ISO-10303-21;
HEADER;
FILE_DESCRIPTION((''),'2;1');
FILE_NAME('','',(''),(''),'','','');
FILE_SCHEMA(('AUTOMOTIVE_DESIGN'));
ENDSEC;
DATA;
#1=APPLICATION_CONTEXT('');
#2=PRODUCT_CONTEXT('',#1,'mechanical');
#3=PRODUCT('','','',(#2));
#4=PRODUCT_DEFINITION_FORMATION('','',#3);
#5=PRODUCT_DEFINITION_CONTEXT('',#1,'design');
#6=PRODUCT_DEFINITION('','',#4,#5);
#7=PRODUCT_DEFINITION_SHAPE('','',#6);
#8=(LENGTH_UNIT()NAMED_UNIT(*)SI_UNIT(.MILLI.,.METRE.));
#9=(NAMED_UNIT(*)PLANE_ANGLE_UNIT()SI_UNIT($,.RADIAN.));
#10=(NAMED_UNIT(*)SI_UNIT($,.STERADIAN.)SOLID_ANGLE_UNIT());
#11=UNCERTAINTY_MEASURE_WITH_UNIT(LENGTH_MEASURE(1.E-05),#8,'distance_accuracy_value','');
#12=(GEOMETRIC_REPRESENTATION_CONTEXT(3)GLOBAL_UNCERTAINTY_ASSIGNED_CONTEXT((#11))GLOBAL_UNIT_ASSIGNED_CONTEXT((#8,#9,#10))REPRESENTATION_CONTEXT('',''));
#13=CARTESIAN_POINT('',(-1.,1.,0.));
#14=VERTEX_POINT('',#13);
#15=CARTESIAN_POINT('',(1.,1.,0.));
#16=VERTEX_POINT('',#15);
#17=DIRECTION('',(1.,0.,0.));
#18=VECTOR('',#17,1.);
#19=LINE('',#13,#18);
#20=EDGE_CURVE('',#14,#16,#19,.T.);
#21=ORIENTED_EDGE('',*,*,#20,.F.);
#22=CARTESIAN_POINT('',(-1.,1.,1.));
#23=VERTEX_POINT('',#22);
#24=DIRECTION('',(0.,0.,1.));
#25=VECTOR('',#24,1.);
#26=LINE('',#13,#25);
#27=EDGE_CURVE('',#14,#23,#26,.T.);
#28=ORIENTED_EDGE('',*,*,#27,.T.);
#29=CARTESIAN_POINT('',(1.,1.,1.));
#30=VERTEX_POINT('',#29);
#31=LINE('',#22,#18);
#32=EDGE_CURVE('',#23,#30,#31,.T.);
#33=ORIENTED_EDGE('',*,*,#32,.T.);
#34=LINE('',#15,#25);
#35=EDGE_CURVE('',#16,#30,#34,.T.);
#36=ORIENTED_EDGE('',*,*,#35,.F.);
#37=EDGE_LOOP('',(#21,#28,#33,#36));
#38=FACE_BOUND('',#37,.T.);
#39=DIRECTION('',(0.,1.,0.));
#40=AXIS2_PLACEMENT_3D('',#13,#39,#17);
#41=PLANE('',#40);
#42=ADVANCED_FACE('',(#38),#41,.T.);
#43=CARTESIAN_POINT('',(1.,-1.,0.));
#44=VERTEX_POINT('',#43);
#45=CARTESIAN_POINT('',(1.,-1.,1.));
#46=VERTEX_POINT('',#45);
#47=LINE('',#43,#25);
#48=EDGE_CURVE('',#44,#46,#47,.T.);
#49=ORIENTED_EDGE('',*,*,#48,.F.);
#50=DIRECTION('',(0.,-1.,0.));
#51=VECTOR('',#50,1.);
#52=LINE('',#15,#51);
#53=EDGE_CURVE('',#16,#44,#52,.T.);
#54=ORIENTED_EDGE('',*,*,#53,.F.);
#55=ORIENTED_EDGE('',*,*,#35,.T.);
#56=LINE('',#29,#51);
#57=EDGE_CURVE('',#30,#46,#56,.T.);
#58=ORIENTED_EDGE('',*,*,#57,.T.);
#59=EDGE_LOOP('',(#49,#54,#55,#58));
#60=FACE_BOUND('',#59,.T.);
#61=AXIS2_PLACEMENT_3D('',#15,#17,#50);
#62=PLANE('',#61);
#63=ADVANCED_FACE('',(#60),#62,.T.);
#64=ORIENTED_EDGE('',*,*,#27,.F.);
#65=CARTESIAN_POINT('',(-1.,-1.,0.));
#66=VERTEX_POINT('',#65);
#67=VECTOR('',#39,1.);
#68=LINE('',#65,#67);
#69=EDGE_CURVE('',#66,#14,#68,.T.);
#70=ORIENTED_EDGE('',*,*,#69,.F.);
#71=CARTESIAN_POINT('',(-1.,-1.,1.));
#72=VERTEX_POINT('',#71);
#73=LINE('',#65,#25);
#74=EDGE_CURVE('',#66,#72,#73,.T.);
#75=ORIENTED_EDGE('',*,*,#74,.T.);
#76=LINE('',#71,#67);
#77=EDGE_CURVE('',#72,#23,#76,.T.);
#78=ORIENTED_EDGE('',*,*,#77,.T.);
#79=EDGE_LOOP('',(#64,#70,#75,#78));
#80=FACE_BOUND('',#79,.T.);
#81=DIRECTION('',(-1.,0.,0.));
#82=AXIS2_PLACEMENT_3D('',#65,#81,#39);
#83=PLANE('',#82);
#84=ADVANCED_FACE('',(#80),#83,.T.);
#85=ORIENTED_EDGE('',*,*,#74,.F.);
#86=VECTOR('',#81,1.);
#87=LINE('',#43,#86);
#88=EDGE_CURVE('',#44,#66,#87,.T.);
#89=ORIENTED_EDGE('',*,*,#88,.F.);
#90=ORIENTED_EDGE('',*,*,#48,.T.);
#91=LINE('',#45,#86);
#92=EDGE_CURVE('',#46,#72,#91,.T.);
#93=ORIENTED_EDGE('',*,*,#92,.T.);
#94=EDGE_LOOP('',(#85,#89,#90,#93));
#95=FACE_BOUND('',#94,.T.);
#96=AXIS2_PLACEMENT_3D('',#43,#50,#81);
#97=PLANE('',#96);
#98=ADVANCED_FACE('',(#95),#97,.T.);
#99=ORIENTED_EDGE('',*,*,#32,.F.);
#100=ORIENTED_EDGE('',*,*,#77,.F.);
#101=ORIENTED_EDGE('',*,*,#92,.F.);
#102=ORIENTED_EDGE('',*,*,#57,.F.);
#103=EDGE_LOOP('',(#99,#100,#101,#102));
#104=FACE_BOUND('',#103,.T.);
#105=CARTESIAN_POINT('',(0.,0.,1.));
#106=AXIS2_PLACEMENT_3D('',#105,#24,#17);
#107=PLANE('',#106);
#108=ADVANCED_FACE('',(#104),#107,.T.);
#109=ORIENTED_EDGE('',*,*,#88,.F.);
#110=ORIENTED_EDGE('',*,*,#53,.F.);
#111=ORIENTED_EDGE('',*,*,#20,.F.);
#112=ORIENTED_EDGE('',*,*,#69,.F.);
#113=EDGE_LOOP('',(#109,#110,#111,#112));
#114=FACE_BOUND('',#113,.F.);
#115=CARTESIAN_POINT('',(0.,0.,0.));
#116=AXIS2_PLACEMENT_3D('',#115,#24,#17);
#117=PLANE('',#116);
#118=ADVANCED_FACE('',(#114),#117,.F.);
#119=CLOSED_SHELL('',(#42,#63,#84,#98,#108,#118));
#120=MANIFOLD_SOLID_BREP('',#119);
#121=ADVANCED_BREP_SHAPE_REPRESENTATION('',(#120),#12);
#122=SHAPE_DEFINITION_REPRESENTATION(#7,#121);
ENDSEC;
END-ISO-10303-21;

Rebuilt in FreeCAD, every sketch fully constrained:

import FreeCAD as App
import Part
import Sketcher
from FreeCAD import Vector
Q = App.Units.Quantity

doc = App.newDocument("Part")
body = doc.addObject("PartDesign::Body", "Body")

# Sketch on XY plane
sketch1 = body.newObject("Sketcher::SketchObject", "Sketch")
sketch1.AttachmentSupport = (doc.getObject("XY_Plane"), [""])
sketch1.MapMode = "FlatFace"
sketch1.addGeometry(Part.LineSegment(Vector(-1, 1, 0), Vector(-1, -1, 0)), False)
sketch1.addGeometry(Part.LineSegment(Vector(-1, -1, 0), Vector(1, -1, 0)), False)
sketch1.addGeometry(Part.LineSegment(Vector(1, -1, 0), Vector(1, 1, 0)), False)
sketch1.addGeometry(Part.LineSegment(Vector(1, 1, 0), Vector(-1, 1, 0)), False)
sketch1.addConstraint(Sketcher.Constraint("Coincident", 0, 2, 1, 1))
sketch1.addConstraint(Sketcher.Constraint("Coincident", 1, 2, 2, 1))
sketch1.addConstraint(Sketcher.Constraint("Coincident", 2, 2, 3, 1))
sketch1.addConstraint(Sketcher.Constraint("Coincident", 3, 2, 0, 1))
sketch1.addConstraint(Sketcher.Constraint("Vertical", 0))
sketch1.addConstraint(Sketcher.Constraint("Horizontal", 1))
sketch1.addConstraint(Sketcher.Constraint("Vertical", 2))
sketch1.addConstraint(Sketcher.Constraint("Horizontal", 3))
sketch1.addConstraint(Sketcher.Constraint("Symmetric", 0, 2, 2, 2, -1, 1))
sketch1.addConstraint(Sketcher.Constraint("Equal", 3, 0))
sketch1.addConstraint(Sketcher.Constraint("DistanceX", 1, 1, 1, 2, Q("2 mm")))
pad1 = body.newObject("PartDesign::Pad", "Pad")
pad1.Profile = sketch1
pad1.Length = 1

doc.recompute()
